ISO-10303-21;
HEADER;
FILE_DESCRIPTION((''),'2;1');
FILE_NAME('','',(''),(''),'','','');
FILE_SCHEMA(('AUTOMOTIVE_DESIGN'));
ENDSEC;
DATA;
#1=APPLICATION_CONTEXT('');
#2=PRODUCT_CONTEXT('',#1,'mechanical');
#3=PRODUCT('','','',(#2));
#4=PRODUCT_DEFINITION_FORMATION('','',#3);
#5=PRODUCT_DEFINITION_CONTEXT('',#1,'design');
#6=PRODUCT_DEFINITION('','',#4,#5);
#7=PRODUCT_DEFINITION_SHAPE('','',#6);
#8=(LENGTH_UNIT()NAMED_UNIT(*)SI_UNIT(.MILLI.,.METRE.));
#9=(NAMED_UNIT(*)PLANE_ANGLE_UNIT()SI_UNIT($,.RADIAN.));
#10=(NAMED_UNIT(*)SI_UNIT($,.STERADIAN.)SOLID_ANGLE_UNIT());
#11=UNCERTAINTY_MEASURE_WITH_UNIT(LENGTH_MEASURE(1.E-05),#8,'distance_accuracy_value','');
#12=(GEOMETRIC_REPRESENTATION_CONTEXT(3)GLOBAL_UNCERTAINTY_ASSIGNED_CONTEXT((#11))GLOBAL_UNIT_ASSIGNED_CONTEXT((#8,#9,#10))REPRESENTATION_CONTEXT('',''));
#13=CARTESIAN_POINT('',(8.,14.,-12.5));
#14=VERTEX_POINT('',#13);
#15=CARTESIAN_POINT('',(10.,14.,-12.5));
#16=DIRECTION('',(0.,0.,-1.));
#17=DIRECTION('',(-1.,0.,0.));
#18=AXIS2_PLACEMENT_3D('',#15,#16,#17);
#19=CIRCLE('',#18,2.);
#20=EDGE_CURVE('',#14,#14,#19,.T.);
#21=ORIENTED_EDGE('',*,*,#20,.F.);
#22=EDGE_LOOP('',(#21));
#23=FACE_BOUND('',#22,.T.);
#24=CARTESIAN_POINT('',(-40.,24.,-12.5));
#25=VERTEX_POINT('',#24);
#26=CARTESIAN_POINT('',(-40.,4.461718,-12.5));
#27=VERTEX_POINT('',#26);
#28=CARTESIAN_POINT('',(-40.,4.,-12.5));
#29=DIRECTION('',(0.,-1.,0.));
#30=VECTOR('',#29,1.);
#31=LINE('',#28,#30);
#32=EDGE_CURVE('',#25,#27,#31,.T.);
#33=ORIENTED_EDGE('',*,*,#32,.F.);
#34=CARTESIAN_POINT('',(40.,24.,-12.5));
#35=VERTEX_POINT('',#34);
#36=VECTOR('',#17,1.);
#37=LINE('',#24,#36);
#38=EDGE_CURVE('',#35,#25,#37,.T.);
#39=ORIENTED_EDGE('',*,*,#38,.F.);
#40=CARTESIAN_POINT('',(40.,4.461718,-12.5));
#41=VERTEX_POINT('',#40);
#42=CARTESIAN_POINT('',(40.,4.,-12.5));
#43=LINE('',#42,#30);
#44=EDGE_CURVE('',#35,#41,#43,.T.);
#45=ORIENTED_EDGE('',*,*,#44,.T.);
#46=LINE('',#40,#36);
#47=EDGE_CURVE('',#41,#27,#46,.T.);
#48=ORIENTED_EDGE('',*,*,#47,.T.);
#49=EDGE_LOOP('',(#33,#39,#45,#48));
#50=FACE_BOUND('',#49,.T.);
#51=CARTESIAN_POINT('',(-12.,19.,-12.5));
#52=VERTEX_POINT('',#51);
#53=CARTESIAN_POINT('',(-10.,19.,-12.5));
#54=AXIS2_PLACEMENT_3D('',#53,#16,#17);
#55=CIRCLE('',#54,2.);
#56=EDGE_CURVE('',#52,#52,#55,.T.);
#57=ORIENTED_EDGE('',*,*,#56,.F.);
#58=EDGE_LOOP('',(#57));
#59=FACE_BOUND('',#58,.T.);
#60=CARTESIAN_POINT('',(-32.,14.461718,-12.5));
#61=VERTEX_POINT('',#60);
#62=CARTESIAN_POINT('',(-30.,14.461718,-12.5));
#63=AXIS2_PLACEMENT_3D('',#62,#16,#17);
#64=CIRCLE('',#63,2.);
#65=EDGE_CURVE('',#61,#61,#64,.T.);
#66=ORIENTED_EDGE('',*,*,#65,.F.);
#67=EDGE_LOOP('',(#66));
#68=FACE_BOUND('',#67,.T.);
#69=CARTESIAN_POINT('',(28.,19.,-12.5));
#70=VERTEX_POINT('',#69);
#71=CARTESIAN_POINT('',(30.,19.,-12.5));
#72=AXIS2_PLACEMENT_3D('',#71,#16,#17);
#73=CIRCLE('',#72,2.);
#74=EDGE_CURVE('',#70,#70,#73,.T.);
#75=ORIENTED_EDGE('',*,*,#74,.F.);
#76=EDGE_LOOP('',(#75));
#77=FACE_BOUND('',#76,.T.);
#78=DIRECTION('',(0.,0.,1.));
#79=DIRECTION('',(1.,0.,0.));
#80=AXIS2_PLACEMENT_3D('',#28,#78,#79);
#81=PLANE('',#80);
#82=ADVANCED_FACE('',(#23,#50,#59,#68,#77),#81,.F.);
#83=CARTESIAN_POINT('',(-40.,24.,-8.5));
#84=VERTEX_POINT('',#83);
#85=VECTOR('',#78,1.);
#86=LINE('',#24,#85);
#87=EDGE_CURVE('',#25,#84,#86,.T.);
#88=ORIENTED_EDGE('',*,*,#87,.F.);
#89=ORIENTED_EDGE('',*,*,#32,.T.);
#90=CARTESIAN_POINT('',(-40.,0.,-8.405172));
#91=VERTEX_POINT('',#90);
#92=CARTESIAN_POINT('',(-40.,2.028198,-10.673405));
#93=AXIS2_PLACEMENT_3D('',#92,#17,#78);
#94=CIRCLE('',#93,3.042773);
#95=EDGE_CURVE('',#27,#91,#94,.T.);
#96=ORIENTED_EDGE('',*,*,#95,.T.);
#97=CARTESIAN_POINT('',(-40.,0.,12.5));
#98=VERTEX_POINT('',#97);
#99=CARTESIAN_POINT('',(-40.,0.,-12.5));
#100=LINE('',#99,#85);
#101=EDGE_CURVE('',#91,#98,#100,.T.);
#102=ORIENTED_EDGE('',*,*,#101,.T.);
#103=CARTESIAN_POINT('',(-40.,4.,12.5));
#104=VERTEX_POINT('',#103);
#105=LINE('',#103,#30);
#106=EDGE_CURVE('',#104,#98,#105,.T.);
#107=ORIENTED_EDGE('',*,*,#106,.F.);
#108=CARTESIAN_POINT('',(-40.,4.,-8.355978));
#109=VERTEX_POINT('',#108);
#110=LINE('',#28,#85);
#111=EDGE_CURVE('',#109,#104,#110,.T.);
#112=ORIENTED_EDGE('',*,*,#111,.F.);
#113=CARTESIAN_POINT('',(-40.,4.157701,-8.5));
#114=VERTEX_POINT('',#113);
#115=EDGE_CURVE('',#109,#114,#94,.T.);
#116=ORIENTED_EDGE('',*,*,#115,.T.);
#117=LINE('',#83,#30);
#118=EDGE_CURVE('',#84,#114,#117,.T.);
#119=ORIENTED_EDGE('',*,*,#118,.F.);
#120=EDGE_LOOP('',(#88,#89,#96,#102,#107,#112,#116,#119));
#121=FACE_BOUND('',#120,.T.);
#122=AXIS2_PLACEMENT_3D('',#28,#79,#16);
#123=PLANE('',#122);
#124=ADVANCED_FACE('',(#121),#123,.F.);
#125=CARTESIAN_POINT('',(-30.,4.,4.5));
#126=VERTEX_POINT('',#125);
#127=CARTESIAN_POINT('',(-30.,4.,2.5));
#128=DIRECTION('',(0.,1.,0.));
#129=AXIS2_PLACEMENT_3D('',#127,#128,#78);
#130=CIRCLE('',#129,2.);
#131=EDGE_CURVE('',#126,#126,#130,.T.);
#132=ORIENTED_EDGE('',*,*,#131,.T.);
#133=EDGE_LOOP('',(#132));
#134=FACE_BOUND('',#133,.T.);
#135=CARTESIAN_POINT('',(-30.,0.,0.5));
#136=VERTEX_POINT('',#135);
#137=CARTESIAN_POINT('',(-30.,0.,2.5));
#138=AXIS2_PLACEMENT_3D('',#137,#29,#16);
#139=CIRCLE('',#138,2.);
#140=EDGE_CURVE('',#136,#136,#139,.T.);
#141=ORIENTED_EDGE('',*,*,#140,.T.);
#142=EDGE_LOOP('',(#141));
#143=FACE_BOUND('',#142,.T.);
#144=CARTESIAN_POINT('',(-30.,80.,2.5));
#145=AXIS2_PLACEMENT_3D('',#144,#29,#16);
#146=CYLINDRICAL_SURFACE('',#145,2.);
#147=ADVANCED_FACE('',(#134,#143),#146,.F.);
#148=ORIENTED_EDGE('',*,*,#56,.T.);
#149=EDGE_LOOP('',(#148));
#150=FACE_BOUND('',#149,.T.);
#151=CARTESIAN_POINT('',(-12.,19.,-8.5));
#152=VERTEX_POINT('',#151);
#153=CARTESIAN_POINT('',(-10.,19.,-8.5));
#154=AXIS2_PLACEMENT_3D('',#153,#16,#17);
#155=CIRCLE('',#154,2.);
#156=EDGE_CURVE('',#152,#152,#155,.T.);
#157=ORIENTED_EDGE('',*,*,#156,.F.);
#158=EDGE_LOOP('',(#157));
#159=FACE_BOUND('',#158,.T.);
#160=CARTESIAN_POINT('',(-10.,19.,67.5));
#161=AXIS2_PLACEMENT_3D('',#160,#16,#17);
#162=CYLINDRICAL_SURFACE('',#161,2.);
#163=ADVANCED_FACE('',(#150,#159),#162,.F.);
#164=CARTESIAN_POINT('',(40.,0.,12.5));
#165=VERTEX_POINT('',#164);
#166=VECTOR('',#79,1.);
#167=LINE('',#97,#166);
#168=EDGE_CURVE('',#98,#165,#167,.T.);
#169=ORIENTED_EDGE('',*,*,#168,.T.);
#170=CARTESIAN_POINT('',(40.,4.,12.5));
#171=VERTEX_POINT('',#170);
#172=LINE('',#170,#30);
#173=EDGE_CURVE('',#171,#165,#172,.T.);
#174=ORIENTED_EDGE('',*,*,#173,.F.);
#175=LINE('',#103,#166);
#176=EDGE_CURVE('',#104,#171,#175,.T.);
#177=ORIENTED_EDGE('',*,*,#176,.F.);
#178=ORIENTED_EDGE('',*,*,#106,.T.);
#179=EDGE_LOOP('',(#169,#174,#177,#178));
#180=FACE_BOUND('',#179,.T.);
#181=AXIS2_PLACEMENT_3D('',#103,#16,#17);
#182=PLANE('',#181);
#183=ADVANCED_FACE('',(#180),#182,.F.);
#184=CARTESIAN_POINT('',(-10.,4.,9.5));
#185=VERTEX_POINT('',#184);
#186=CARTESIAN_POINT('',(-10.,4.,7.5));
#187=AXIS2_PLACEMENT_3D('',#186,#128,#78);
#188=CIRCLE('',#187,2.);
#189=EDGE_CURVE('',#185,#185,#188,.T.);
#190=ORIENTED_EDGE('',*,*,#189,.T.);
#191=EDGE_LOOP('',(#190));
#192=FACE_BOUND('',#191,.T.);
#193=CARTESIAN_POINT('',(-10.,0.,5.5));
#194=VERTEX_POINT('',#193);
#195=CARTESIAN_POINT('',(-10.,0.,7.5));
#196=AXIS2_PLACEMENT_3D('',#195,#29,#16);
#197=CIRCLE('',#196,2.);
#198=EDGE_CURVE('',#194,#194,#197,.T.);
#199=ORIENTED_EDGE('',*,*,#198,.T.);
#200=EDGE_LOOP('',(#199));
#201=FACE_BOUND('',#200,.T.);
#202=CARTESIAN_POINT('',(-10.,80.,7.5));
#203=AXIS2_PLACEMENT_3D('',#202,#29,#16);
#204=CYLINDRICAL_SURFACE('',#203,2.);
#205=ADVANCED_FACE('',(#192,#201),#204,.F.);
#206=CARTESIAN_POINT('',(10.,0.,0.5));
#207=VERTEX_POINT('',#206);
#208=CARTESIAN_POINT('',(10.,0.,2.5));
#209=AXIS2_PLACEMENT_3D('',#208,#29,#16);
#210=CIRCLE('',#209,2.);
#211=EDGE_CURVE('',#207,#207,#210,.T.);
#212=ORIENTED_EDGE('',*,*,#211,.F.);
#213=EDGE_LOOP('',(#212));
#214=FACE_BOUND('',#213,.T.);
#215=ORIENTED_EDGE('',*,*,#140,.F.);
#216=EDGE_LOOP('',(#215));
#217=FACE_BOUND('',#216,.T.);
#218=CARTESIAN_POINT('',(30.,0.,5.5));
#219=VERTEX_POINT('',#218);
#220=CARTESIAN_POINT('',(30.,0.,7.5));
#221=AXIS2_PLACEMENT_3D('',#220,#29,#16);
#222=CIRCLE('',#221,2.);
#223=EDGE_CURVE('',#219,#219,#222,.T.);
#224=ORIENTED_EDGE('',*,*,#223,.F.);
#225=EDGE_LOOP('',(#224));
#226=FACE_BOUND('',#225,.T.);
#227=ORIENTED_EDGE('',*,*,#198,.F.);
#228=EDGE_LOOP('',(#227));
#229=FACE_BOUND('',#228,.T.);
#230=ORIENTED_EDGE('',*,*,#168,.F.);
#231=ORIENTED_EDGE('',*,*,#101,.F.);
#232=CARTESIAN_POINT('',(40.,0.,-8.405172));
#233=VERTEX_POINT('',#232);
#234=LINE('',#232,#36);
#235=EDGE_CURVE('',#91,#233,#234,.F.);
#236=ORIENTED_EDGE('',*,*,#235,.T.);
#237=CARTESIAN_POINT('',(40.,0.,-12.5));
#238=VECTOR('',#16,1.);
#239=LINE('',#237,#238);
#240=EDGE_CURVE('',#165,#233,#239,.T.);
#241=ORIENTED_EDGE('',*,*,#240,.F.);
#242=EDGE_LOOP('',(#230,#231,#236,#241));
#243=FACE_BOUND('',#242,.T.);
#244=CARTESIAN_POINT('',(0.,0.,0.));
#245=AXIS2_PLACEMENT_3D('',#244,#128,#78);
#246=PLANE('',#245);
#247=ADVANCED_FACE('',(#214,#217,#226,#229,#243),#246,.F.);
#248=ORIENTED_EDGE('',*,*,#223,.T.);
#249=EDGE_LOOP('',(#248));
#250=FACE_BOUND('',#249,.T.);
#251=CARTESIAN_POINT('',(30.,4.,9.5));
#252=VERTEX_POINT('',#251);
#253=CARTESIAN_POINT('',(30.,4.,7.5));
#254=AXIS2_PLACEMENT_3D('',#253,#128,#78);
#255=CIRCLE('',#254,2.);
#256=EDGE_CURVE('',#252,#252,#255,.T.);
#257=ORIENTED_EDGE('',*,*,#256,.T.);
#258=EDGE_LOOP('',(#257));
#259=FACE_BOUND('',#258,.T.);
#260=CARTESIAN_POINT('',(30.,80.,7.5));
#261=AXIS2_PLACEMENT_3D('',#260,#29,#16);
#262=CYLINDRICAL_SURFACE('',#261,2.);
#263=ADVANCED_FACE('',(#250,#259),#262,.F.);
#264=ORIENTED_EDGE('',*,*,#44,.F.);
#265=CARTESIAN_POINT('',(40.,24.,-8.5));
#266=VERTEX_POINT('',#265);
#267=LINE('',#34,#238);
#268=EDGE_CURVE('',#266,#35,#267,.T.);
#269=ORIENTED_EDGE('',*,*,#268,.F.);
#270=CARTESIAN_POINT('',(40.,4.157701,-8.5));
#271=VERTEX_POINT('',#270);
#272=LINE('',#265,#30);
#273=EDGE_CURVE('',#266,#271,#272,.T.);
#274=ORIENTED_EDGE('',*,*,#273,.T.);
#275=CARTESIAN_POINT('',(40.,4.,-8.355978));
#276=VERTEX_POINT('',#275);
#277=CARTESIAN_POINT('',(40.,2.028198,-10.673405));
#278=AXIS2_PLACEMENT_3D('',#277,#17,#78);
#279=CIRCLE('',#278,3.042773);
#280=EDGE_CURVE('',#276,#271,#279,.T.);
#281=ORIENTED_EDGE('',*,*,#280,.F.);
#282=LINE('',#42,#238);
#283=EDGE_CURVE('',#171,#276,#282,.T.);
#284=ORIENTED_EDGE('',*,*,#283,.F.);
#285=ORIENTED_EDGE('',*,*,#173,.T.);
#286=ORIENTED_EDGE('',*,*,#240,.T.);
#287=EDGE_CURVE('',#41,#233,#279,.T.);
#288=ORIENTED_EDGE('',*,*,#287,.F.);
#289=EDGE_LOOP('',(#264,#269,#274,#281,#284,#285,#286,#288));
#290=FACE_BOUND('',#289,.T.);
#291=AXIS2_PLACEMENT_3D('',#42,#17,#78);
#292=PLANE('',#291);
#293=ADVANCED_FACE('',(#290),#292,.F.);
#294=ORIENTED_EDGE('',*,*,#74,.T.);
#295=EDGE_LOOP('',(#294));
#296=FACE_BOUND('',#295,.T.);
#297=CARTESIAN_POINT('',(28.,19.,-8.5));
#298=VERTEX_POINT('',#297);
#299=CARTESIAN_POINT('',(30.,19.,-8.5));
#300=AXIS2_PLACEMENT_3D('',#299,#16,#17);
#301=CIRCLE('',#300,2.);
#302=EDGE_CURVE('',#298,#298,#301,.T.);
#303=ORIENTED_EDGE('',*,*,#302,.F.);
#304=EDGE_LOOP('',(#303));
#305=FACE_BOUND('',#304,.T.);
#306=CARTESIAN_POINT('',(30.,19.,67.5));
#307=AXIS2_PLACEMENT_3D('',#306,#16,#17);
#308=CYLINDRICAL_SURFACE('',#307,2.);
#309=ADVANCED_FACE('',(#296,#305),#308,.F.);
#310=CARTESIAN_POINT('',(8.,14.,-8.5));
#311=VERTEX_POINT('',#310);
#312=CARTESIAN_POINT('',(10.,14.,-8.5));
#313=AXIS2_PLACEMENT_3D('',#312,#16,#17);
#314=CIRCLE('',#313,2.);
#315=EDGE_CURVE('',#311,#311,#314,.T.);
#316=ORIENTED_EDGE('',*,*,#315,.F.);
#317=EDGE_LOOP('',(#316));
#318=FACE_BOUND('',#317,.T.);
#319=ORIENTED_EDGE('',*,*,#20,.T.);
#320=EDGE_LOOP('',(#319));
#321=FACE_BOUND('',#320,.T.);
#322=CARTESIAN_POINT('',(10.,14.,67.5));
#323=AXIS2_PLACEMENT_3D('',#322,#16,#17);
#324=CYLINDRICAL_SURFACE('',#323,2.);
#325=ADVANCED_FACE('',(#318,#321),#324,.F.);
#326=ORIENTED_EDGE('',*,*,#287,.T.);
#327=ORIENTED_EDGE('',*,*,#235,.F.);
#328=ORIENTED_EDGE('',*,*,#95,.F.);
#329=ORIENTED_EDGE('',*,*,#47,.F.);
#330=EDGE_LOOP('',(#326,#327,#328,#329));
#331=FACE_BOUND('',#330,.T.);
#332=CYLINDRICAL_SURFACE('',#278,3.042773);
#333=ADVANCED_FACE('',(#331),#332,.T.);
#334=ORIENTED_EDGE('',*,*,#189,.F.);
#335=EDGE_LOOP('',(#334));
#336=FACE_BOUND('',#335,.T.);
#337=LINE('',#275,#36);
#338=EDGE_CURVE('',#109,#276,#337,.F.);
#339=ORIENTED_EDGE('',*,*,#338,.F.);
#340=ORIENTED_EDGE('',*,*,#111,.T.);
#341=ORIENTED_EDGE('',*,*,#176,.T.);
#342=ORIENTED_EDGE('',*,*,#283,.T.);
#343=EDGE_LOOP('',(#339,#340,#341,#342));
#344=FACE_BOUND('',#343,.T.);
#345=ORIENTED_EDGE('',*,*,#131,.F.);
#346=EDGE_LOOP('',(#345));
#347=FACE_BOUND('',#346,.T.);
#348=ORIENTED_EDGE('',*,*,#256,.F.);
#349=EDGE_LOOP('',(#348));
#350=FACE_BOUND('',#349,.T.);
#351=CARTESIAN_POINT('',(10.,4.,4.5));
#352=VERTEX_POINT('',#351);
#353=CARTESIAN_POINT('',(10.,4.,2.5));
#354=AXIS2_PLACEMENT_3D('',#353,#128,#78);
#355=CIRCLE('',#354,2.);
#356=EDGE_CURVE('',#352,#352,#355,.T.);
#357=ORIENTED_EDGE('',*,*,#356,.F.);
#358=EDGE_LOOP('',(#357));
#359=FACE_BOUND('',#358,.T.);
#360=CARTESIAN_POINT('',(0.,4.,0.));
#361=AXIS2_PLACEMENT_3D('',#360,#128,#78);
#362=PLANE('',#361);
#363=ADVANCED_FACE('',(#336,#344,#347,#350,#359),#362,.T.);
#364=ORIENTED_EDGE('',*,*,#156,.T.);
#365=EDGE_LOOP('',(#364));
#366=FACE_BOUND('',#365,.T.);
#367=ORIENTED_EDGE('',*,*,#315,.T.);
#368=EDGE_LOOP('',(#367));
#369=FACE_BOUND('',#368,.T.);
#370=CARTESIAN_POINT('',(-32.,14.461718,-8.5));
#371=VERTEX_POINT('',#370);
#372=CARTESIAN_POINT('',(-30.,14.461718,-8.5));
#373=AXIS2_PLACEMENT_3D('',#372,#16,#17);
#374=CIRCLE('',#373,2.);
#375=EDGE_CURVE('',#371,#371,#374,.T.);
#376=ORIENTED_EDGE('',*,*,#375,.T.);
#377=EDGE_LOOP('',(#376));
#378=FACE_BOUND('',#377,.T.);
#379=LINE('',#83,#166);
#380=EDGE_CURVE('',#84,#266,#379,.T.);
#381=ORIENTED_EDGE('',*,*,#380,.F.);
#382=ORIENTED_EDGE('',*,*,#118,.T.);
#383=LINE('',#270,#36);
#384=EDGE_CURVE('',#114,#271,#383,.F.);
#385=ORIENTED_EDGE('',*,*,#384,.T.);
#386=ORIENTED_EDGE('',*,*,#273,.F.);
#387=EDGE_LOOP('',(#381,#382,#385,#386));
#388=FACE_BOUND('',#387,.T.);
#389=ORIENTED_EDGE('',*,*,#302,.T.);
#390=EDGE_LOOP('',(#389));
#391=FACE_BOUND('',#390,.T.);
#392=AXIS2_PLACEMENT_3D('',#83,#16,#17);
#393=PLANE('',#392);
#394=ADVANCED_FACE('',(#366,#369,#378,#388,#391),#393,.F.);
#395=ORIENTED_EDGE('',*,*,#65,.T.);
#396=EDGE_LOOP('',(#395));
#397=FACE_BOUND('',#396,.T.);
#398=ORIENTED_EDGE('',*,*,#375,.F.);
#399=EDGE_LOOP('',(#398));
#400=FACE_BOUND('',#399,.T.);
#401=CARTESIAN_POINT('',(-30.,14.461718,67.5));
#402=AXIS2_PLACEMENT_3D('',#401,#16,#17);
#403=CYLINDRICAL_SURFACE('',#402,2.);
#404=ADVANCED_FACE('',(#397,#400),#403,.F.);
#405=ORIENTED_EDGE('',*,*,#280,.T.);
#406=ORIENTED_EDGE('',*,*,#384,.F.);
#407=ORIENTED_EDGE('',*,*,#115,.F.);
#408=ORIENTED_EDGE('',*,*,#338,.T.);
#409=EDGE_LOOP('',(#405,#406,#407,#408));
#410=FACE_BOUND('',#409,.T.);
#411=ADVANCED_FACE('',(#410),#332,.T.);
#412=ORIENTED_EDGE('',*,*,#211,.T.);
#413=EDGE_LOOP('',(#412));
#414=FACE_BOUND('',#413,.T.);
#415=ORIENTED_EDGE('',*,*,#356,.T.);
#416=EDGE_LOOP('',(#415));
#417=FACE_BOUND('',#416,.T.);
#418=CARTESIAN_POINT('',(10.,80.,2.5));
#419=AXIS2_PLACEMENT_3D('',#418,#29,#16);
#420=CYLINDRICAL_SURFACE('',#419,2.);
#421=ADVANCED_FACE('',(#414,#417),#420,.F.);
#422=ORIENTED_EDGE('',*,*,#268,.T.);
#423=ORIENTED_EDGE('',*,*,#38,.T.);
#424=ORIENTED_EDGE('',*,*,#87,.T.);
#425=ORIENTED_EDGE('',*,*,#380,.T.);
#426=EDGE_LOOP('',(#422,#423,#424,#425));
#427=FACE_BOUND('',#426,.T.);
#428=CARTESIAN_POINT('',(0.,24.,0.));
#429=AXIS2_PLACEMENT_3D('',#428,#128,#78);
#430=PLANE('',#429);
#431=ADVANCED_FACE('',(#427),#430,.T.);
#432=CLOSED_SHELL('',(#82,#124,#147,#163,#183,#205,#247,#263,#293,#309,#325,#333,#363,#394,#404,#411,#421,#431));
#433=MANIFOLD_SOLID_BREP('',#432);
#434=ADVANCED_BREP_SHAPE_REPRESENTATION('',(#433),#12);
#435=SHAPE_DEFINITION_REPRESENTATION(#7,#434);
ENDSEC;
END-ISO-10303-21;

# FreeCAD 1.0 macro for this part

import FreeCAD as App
import Part
import Sketcher

V = App.Vector

doc = App.newDocument("Part")
body = doc.addObject("PartDesign::Body", "Body")

sketch1 = doc.addObject("Sketcher::SketchObject", "Sketch")
body.addObject(sketch1)
sketch1.AttachmentSupport = (doc.XZ_Plane, [""])
sketch1.MapMode = "FlatFace"
sketch1.addGeometry([
    Part.LineSegment(V(-40, -12, 0), V(-40, 12, 0)),
    Part.LineSegment(V(-40, 12, 0), V(40, 12, 0)),
    Part.LineSegment(V(40, 12, 0), V(40, -12, 0)),
    Part.LineSegment(V(40, -12, 0), V(-40, -12, 0)),
], False)
sketch1.addConstraint([
    Sketcher.Constraint("Coincident", 0, 2, 1, 1),
    Sketcher.Constraint("Coincident", 1, 2, 2, 1),
    Sketcher.Constraint("Coincident", 2, 2, 3, 1),
    Sketcher.Constraint("Coincident", 3, 2, 0, 1),
    Sketcher.Constraint("Vertical", 0),
    Sketcher.Constraint("Horizontal", 1),
    Sketcher.Constraint("Vertical", 2),
    Sketcher.Constraint("Horizontal", 3),
    Sketcher.Constraint("Symmetric", 0, 2, 2, 2, -1, 1),
    Sketcher.Constraint("DistanceX", 1, 1, 1, 2, 80.0),
    Sketcher.Constraint("DistanceY", 0, 1, 0, 2, 25.0),
])
pad1 = doc.addObject("PartDesign::Pad", "Pad")
body.addObject(pad1)
pad1.Profile = sketch1
pad1.Length = 4
pad1.Reversed = True

sketch2 = doc.addObject("Sketcher::SketchObject", "Sketch001")
body.addObject(sketch2)
sketch2.AttachmentSupport = (doc.XZ_Plane, [""])
sketch2.MapMode = "FlatFace"
sketch2.AttachmentOffset = App.Placement(V(0, 0, -4), App.Rotation())
sketch2.addGeometry([
    Part.LineSegment(V(-40, -12.5, 0), V(-40, -8.5, 0)),
    Part.LineSegment(V(-40, -8.5, 0), V(40, -8.5, 0)),
    Part.LineSegment(V(40, -8.5, 0), V(40, -12.5, 0)),
    Part.LineSegment(V(40, -12.5, 0), V(-40, -12.5, 0)),
], False)
sketch2.addConstraint([
    Sketcher.Constraint("Coincident", 0, 2, 1, 1),
    Sketcher.Constraint("Coincident", 1, 2, 2, 1),
    Sketcher.Constraint("Coincident", 2, 2, 3, 1),
    Sketcher.Constraint("Coincident", 3, 2, 0, 1),
    Sketcher.Constraint("Vertical", 0),
    Sketcher.Constraint("Horizontal", 1),
    Sketcher.Constraint("Vertical", 2),
    Sketcher.Constraint("Horizontal", 3),
    Sketcher.Constraint("DistanceX", 1, 1, 1, 2, 80.0),
    Sketcher.Constraint("DistanceY", 0, 1, 0, 2, 4.0),
    Sketcher.Constraint("DistanceX", 0, 2, -1, 1, 40.0),
    Sketcher.Constraint("DistanceY", 0, 2, -1, 1, 8.5),
])
pad2 = doc.addObject("PartDesign::Pad", "Pad001")
body.addObject(pad2)
pad2.Profile = sketch2
pad2.Length = 20
pad2.Reversed = True

sketch3 = doc.addObject("Sketcher::SketchObject", "Sketch002")
body.addObject(sketch3)
sketch3.AttachmentSupport = (doc.YZ_Plane, [""])
sketch3.MapMode = "FlatFace"
sketch3.AttachmentOffset = App.Placement(V(0, 0, -40), App.Rotation())
sketch3.addGeometry(Part.Circle(V(2, -10.7, 0), V(0, 0, 1), 3), False)
sketch3.addConstraint([
    Sketcher.Constraint("Diameter", 0, 6.085546),
    Sketcher.Constraint("DistanceX", -1, 1, 0, 3, 2.028198),
    Sketcher.Constraint("DistanceY", 0, 3, -1, 1, 10.673405),
])
pad3 = doc.addObject("PartDesign::Pad", "Pad002")
body.addObject(pad3)
pad3.Profile = sketch3
pad3.Length = 80

sketch4 = doc.addObject("Sketcher::SketchObject", "Sketch003")
body.addObject(sketch4)
sketch4.AttachmentSupport = (doc.XY_Plane, [""])
sketch4.MapMode = "FlatFace"
sketch4.AttachmentOffset = App.Placement(V(0, 0, -12.5), App.Rotation())
sketch4.addGeometry([
    Part.Circle(V(-30, 14.5, 0), V(0, 0, 1), 2),
    Part.Circle(V(10, 14, 0), V(0, 0, 1), 2),
    Part.Circle(V(-10, 19, 0), V(0, 0, 1), 2),
    Part.Circle(V(30, 19, 0), V(0, 0, 1), 2),
], False)
sketch4.addConstraint([
    Sketcher.Constraint("Equal", 0, 1),
    Sketcher.Constraint("Equal", 1, 2),
    Sketcher.Constraint("Equal", 2, 3),
    Sketcher.Constraint("Horizontal", 2, 3, 3, 3),
    Sketcher.Constraint("Diameter", 0, 4.0),
    Sketcher.Constraint("DistanceX", 0, 3, -1, 1, 30.0),
    Sketcher.Constraint("DistanceX", -1, 1, 1, 3, 10.0),
    Sketcher.Constraint("DistanceY", -1, 1, 1, 3, 14.0),
    Sketcher.Constraint("DistanceX", 2, 3, -1, 1, 10.0),
    Sketcher.Constraint("DistanceY", -1, 1, 2, 3, 19.0),
    Sketcher.Constraint("DistanceX", -1, 1, 3, 3, 30.0),
    Sketcher.Constraint("DistanceY", -1, 1, 0, 3, 14.461718),
])
pocket1 = doc.addObject("PartDesign::Pocket", "Pocket")
body.addObject(pocket1)
pocket1.Profile = sketch4
pocket1.Length = 80
pocket1.Reversed = True

sketch5 = doc.addObject("Sketcher::SketchObject", "Sketch004")
body.addObject(sketch5)
sketch5.AttachmentSupport = (doc.XZ_Plane, [""])
sketch5.MapMode = "FlatFace"
sketch5.addGeometry([
    Part.Circle(V(-30, 2.5, 0), V(0, 0, 1), 2),
    Part.Circle(V(-10, 7.5, 0), V(0, 0, 1), 2),
    Part.Circle(V(10, 2.5, 0), V(0, 0, 1), 2),
    Part.Circle(V(30, 7.5, 0), V(0, 0, 1), 2),
], False)
sketch5.addConstraint([
    Sketcher.Constraint("Equal", 0, 1),
    Sketcher.Constraint("Equal", 1, 2),
    Sketcher.Constraint("Equal", 2, 3),
    Sketcher.Constraint("Horizontal", 0, 3, 2, 3),
    Sketcher.Constraint("Horizontal", 1, 3, 3, 3),
    Sketcher.Constraint("Diameter", 0, 4.0),
    Sketcher.Constraint("DistanceX", 0, 3, -1, 1, 30.0),
    Sketcher.Constraint("DistanceX", 1, 3, -1, 1, 10.0),
    Sketcher.Constraint("DistanceX", -1, 1, 2, 3, 10.0),
    Sketcher.Constraint("DistanceX", -1, 1, 3, 3, 30.0),
    Sketcher.Constraint("DistanceY", 0, 3, 1, 3, 5.0),
    Sketcher.Constraint("DistanceY", -1, 1, 0, 3, 2.5),
])
pocket2 = doc.addObject("PartDesign::Pocket", "Pocket001")
body.addObject(pocket2)
pocket2.Profile = sketch5
pocket2.Length = 80

doc.recompute()
